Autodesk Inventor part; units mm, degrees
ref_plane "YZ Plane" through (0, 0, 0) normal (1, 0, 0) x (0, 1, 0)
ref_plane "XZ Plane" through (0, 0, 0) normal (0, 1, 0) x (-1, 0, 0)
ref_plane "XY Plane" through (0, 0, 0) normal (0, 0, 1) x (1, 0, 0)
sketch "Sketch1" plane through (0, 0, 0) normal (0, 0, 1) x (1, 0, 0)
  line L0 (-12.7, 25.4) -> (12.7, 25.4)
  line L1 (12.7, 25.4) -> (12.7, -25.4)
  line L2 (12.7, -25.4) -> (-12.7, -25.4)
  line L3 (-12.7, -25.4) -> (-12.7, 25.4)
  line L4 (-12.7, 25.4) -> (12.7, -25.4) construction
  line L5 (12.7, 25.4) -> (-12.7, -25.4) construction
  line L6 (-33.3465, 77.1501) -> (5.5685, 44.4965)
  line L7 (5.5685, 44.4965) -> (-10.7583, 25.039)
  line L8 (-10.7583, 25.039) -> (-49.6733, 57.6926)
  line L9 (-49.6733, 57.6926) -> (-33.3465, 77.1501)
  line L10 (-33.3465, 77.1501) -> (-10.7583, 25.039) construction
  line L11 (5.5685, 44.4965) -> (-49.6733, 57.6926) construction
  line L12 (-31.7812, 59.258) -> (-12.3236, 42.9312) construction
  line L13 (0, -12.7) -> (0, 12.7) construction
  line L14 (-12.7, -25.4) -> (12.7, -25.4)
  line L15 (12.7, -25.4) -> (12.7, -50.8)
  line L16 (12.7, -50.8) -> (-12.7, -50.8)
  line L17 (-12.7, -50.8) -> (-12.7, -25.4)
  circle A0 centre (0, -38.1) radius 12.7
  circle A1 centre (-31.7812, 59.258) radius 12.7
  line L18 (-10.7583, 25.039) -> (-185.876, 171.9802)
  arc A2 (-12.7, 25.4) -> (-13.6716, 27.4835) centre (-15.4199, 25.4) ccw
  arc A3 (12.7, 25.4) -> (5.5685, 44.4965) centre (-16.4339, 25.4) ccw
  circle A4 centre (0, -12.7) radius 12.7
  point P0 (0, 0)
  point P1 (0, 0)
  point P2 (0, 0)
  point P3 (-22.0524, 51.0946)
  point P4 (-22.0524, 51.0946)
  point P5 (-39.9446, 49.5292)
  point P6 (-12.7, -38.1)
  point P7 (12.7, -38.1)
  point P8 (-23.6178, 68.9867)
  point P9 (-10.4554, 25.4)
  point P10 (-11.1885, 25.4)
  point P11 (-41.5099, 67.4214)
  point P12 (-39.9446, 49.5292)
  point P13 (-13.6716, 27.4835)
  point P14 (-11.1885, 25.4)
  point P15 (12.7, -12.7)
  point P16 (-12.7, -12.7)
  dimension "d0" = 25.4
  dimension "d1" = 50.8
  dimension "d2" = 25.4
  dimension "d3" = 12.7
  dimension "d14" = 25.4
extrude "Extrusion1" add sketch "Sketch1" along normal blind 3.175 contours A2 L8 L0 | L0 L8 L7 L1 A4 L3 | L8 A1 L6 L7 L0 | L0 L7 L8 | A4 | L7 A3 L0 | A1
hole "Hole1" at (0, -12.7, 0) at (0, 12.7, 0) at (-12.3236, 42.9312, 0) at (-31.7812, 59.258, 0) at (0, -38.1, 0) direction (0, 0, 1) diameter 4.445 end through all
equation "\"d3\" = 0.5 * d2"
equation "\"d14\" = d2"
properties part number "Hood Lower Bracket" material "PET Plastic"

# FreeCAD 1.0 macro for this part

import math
import FreeCAD as App
import Part
import Sketcher
Q = App.Units.Quantity

doc = App.newDocument("Part")
body = doc.addObject("PartDesign::Body", "Body")

# Sketch on XY plane
sketch1 = doc.addObject("Sketcher::SketchObject", "Sketch")
body.addObject(sketch1)
sketch1.AttachmentSupport = (doc.XY_Plane, [""])
sketch1.MapMode = "FlatFace"
sketch1.addGeometry([
    Part.ArcOfCircle(Part.Circle(App.Vector(-15.4, 25.4, 0), App.Vector(0, 0, 1), 2.7), math.radians(0), math.radians(50)),  # 0
    Part.LineSegment(App.Vector(-12.7, 25.4, 0), App.Vector(-12.7, -12.7, 0)),  # 1
    Part.ArcOfCircle(Part.Circle(App.Vector(0, -12.7, 0), App.Vector(0, 0, 1), 12.7), math.radians(180), math.radians(360)),  # 2
    Part.LineSegment(App.Vector(12.7, -12.7, 0), App.Vector(12.7, 25.4, 0)),  # 3
    Part.ArcOfCircle(Part.Circle(App.Vector(-16.4, 25.4, 0), App.Vector(0, 0, 1), 29.1), math.radians(0), math.radians(41)),  # 4
    Part.LineSegment(App.Vector(5.6, 44.5, 0), App.Vector(-23.6, 69, 0)),  # 5
    Part.ArcOfCircle(Part.Circle(App.Vector(-31.8, 59.3, 0), App.Vector(0, 0, 1), 12.7), math.radians(50), math.radians(230)),  # 6
    Part.LineSegment(App.Vector(-39.9, 49.5, 0), App.Vector(-13.7, 27.5, 0)),  # 7
], False)
sketch1.addConstraint([
    Sketcher.Constraint("Tangent", 0, 1, 1, 1),
    Sketcher.Constraint("Tangent", 1, 2, 2, 1),
    Sketcher.Constraint("Tangent", 2, 2, 3, 1),
    Sketcher.Constraint("Tangent", 3, 2, 4, 1),
    Sketcher.Constraint("Coincident", 4, 2, 5, 1),
    Sketcher.Constraint("Tangent", 5, 2, 6, 1),
    Sketcher.Constraint("Tangent", 6, 2, 7, 1),
    Sketcher.Constraint("Tangent", 7, 2, 0, 2),
    Sketcher.Constraint("Vertical", 1),
    Sketcher.Constraint("Vertical", 3),
    Sketcher.Constraint("Equal", 2, 6),
    Sketcher.Constraint("Symmetric", 0, 1, 3, 2, -2),
    Sketcher.Constraint("Parallel", 5, 7),
    Sketcher.Constraint("Radius", 2, Q("0.5 in")),
    Sketcher.Constraint("DistanceY", -1, 1, 0, 3, Q("1 in")),
    Sketcher.Constraint("DistanceY", 2, 3, -1, 1, Q("0.5 in")),
    Sketcher.Constraint("Angle", 5, Q("140 deg")),
    Sketcher.Constraint("Radius", 4, Q("1.147 in")),
    Sketcher.Constraint("Distance", 5, Q("1.5 in")),
    Sketcher.Constraint("Radius", 0, Q("2.72 mm")),
])
pad1 = doc.addObject("PartDesign::Pad", "Pad")
body.addObject(pad1)
pad1.Profile = sketch1
pad1.Length = Q("0.125 in")

# Sketch on XY plane
sketch2 = doc.addObject("Sketcher::SketchObject", "Sketch001")
body.addObject(sketch2)
sketch2.AttachmentSupport = (doc.XY_Plane, [""])
sketch2.MapMode = "FlatFace"
sketch2.addGeometry([
    Part.Circle(App.Vector(0, -12.7, 0), App.Vector(0, 0, 1), 2.2),  # 0
    Part.Circle(App.Vector(0, 12.7, 0), App.Vector(0, 0, 1), 2.2),  # 1
    Part.Circle(App.Vector(-12.3, 42.9, 0), App.Vector(0, 0, 1), 2.2),  # 2
    Part.Circle(App.Vector(-31.8, 59.3, 0), App.Vector(0, 0, 1), 2.2),  # 3
    Part.Circle(App.Vector(0, -38.1, 0), App.Vector(0, 0, 1), 2.2),  # 4
], False)
sketch2.addConstraint([
    Sketcher.Constraint("Equal", 0, 1),
    Sketcher.Constraint("Equal", 1, 2),
    Sketcher.Constraint("Equal", 2, 3),
    Sketcher.Constraint("Equal", 3, 4),
    Sketcher.Constraint("Symmetric", 0, 3, 1, 3, -1, 1),
    Sketcher.Constraint("PointOnObject", 0, 3, -2),
    Sketcher.Constraint("PointOnObject", 4, 3, -2),
    Sketcher.Constraint("Diameter", 0, Q("0.175 in")),
    Sketcher.Constraint("DistanceY", 0, 3, 1, 3, Q("1 in")),
    Sketcher.Constraint("DistanceY", 4, 3, 0, 3, Q("1 in")),
    Sketcher.Constraint("DistanceY", -1, 1, 3, 3, Q("2.333 in")),
    Sketcher.Constraint("DistanceY", -1, 1, 2, 3, Q("1.6902 in")),
    Sketcher.Constraint("DistanceX", 2, 3, -1, 1, Q("12.3236 mm")),
    Sketcher.Constraint("DistanceX", 3, 3, -1, 1, Q("31.7812 mm")),
])
doc.recompute()
hole = doc.addObject("PartDesign::Hole", "Hole")
body.addObject(hole)
hole.Profile = sketch2
hole.ThreadType = "None"
hole.Diameter = Q("0.175 in")
hole.DepthType = "ThroughAll"
hole.Reversed = True

doc.recompute()
